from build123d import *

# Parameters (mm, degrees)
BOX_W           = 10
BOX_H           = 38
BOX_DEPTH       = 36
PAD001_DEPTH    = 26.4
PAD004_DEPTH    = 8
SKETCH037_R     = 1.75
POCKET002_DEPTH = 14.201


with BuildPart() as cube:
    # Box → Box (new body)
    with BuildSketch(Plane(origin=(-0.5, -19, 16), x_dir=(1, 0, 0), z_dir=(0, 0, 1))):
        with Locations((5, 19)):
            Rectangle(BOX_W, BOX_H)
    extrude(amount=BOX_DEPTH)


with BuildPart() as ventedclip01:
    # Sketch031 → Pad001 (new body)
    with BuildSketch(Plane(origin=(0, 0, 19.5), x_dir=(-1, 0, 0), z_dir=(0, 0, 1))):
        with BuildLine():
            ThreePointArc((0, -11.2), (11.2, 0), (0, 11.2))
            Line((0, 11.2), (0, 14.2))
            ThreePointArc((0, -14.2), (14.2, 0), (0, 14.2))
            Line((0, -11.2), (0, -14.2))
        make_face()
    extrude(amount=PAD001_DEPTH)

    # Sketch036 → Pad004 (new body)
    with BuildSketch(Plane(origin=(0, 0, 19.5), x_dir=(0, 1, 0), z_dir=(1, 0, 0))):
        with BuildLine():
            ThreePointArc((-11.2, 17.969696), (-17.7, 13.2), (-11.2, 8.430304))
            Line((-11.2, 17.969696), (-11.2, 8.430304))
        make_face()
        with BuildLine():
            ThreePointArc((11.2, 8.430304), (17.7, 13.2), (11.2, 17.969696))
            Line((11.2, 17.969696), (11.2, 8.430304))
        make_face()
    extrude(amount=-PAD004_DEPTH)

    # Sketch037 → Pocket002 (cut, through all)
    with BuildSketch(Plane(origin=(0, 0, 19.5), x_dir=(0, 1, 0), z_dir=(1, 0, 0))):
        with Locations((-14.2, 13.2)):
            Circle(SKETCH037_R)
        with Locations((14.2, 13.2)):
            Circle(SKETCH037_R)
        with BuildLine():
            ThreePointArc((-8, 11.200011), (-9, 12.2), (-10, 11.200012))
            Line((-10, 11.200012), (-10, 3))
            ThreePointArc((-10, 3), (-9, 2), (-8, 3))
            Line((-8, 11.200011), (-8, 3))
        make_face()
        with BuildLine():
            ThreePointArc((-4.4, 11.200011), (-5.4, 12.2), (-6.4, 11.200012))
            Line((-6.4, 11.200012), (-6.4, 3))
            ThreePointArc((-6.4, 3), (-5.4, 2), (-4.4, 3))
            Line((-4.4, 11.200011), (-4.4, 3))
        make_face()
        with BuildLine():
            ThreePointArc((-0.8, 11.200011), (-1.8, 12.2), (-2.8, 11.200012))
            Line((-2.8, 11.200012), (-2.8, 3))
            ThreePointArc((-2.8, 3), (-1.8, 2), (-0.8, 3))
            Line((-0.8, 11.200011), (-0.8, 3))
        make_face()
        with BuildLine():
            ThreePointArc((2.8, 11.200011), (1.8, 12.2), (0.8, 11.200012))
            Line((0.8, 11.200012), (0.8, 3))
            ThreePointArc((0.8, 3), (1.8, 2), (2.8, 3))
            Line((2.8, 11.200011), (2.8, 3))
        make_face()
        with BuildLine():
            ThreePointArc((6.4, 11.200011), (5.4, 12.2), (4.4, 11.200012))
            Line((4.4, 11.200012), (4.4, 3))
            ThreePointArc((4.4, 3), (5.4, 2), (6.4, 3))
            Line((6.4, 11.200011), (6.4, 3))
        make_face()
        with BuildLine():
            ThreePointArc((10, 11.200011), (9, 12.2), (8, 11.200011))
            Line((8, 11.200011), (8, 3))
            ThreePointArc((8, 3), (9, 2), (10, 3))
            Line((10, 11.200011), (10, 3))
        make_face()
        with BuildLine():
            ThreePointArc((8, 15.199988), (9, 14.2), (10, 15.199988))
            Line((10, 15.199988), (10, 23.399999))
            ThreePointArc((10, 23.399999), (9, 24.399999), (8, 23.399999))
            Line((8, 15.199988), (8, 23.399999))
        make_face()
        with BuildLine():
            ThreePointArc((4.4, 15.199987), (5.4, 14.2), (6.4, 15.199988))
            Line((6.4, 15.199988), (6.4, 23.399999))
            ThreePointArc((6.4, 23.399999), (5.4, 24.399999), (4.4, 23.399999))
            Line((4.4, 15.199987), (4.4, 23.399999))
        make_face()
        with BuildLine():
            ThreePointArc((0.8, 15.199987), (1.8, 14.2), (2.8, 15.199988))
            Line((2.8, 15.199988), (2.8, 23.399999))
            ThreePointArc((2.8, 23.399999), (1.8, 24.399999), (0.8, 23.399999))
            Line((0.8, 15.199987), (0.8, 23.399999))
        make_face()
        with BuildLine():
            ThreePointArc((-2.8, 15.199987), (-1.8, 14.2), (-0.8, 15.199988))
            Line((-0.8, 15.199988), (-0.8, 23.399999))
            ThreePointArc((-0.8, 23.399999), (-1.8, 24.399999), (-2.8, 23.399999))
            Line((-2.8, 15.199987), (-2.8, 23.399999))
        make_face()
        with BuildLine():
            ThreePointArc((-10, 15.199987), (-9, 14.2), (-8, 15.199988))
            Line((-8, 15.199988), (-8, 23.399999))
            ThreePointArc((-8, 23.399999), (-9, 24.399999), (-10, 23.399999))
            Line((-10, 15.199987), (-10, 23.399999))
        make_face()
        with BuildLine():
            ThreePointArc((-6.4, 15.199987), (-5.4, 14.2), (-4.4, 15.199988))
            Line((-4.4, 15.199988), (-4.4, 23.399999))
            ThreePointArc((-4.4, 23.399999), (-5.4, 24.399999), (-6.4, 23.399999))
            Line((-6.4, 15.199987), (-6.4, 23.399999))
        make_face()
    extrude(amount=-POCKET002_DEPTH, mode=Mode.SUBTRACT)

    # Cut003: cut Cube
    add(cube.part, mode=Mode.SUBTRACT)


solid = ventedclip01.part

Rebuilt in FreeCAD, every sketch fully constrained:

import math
import FreeCAD as App
import Part
import Sketcher
from FreeCAD import Vector

doc = App.newDocument("Part")
params = doc.addObject("Spreadsheet::Sheet", "Params")
for row, (alias, value) in enumerate([
    ("sketch1_width", "10 mm"),
    ("sketch1_height", "38 mm"),
    ("pad1_length", "36 mm"),
    ("sketch2_radius", "11.2 mm"),
    ("sketch2_radius2", "14.2 mm"),
    ("pad2_length", "26.4 mm"),
    ("sketch3_radius", "5 mm"),
    ("pad3_length", "8 mm"),
    ("sketch4_radius", "1 mm"),
    ("sketch4_diameter", "3.5 mm"),
], start=1):
    params.set(f"A{row}", alias)
    params.set(f"B{row}", "=" + value)
    params.setAlias(f"B{row}", alias)

body = doc.addObject("PartDesign::Body", "Body")

sketch1 = body.newObject("Sketcher::SketchObject", "Sketch")
sketch1.AttachmentSupport = (doc.getObject("XY_Plane"), [""])
sketch1.MapMode = "FlatFace"
sketch1.AttachmentOffset = App.Placement(Vector(0, 0, 16), App.Rotation())
sketch1.addGeometry([
    Part.LineSegment(Vector(0, 19, 0), Vector(0, -19, 0)),
    Part.LineSegment(Vector(0, -19, 0), Vector(10, -19, 0)),
    Part.LineSegment(Vector(10, -19, 0), Vector(10, 19, 0)),
    Part.LineSegment(Vector(10, 19, 0), Vector(0, 19, 0)),
], False)
sketch1.addConstraint([
    Sketcher.Constraint("Coincident", 0, 2, 1, 1),
    Sketcher.Constraint("Coincident", 1, 2, 2, 1),
    Sketcher.Constraint("Coincident", 2, 2, 3, 1),
    Sketcher.Constraint("Coincident", 3, 2, 0, 1),
    Sketcher.Constraint("Vertical", 0),
    Sketcher.Constraint("Horizontal", 1),
    Sketcher.Constraint("Vertical", 2),
    Sketcher.Constraint("Horizontal", 3),
    Sketcher.Constraint("DistanceX", 1, 1, 1, 2, 10.0),
    Sketcher.Constraint("DistanceY", 0, 2, 0, 1, 38.0),
    Sketcher.Constraint("DistanceY", 0, 2, -1, 1, 19.0),
    Sketcher.Constraint("DistanceX", 0, 2, -1, 1, 0.5),
])
sketch1.setExpression("Constraints[8]", "Params.sketch1_width")
sketch1.setExpression("Constraints[9]", "Params.sketch1_height")
pad1 = body.newObject("PartDesign::Pad", "Pad")
pad1.Profile = sketch1
pad1.setExpression("Length", "Params.pad1_length")
body2 = doc.addObject("PartDesign::Body", "Body001")

sketch2 = body2.newObject("Sketcher::SketchObject", "Sketch001")
sketch2.AttachmentSupport = (doc.getObject("XY_Plane001"), [""])
sketch2.MapMode = "FlatFace"
sketch2.AttachmentOffset = App.Placement(Vector(0, 0, 19.5), App.Rotation())
sketch2.addGeometry([
    Part.ArcOfCircle(Part.Circle(Vector(0, 0, 0), Vector(0, 0, 1), 11.2), math.radians(90), math.radians(270)),
    Part.LineSegment(Vector(0, 11.2, 0), Vector(0, 14.2, 0)),
    Part.ArcOfCircle(Part.Circle(Vector(0, 0, 0), Vector(0, 0, 1), 14.2), math.radians(90), math.radians(270)),
    Part.LineSegment(Vector(0, -14.2, 0), Vector(0, -11.2, 0)),
], False)
sketch2.addConstraint([
    Sketcher.Constraint("Coincident", 0, 1, 1, 1),
    Sketcher.Constraint("Coincident", 1, 2, 2, 1),
    Sketcher.Constraint("Coincident", 2, 2, 3, 1),
    Sketcher.Constraint("Coincident", 3, 2, 0, 2),
    Sketcher.Constraint("Vertical", 1),
    Sketcher.Constraint("Vertical", 3),
    Sketcher.Constraint("Coincident", 0, 3, -1, 1),
    Sketcher.Constraint("Coincident", 2, 3, -1, 1),
    Sketcher.Constraint("PointOnObject", 0, 1, -2),
    Sketcher.Constraint("PointOnObject", 2, 2, -2),
    Sketcher.Constraint("Radius", 0, 11.2),
    Sketcher.Constraint("Radius", 2, 14.2),
])
sketch2.setExpression("Constraints[10]", "Params.sketch2_radius")
sketch2.setExpression("Constraints[11]", "Params.sketch2_radius2")
pad2 = body2.newObject("PartDesign::Pad", "Pad001")
pad2.Profile = sketch2
pad2.setExpression("Length", "Params.pad2_length")

sketch3 = body2.newObject("Sketcher::SketchObject", "Sketch002")
sketch3.AttachmentSupport = (doc.getObject("YZ_Plane001"), [""])
sketch3.MapMode = "FlatFace"
sketch3.addGeometry([
    Part.ArcOfCircle(Part.Circle(Vector(-12.7, 32.7, 0), Vector(0, 0, 1), 5), math.radians(73), math.radians(287)),
    Part.LineSegment(Vector(-11.2, 27.9, 0), Vector(-11.2, 37.5, 0)),
    Part.ArcOfCircle(Part.Circle(Vector(12.7, 32.7, 0), Vector(0, 0, 1), 5), math.radians(-107), math.radians(107)),
    Part.LineSegment(Vector(11.2, 37.5, 0), Vector(11.2, 27.9, 0)),
], False)
sketch3.addConstraint([
    Sketcher.Constraint("Coincident", 0, 1, 1, 2),
    Sketcher.Constraint("Coincident", 1, 1, 0, 2),
    Sketcher.Constraint("Coincident", 2, 1, 3, 2),
    Sketcher.Constraint("Coincident", 3, 1, 2, 2),
    Sketcher.Constraint("Vertical", 1),
    Sketcher.Constraint("Vertical", 3),
    Sketcher.Constraint("Equal", 0, 2),
    Sketcher.Constraint("Symmetric", 0, 3, 2, 3, -2),
    Sketcher.Constraint("Horizontal", 1, 1, 2, 1),
    Sketcher.Constraint("Radius", 0, 5.0),
    Sketcher.Constraint("DistanceX", 0, 3, -1, 1, 12.7),
    Sketcher.Constraint("DistanceY", -1, 1, 0, 3, 32.7),
    Sketcher.Constraint("DistanceX", 0, 1, -1, 1, 11.2),
])
sketch3.setExpression("Constraints[9]", "Params.sketch3_radius")
pad3 = body2.newObject("PartDesign::Pad", "Pad002")
pad3.Profile = sketch3
pad3.setExpression("Length", "Params.pad3_length")
pad3.Reversed = True

sketch4 = body2.newObject("Sketcher::SketchObject", "Sketch003")
sketch4.AttachmentSupport = (doc.getObject("YZ_Plane001"), [""])
sketch4.MapMode = "FlatFace"
sketch4.addGeometry([
    Part.Circle(Vector(-14.2, 32.7, 0), Vector(0, 0, 1), 1.8),
    Part.Circle(Vector(14.2, 32.7, 0), Vector(0, 0, 1), 1.8),
    Part.ArcOfCircle(Part.Circle(Vector(-9, 30.7, 0), Vector(0, 0, 1), 1), math.radians(0), math.radians(180)),
    Part.LineSegment(Vector(-10, 30.7, 0), Vector(-10, 22.5, 0)),
    Part.ArcOfCircle(Part.Circle(Vector(-9, 22.5, 0), Vector(0, 0, 1), 1), math.radians(180), math.radians(360)),
    Part.LineSegment(Vector(-8, 22.5, 0), Vector(-8, 30.7, 0)),
    Part.ArcOfCircle(Part.Circle(Vector(-5.4, 30.7, 0), Vector(0, 0, 1), 1), math.radians(0), math.radians(180)),
    Part.LineSegment(Vector(-6.4, 30.7, 0), Vector(-6.4, 22.5, 0)),
    Part.ArcOfCircle(Part.Circle(Vector(-5.4, 22.5, 0), Vector(0, 0, 1), 1), math.radians(180), math.radians(360)),
    Part.LineSegment(Vector(-4.4, 22.5, 0), Vector(-4.4, 30.7, 0)),
    Part.ArcOfCircle(Part.Circle(Vector(-1.8, 30.7, 0), Vector(0, 0, 1), 1), math.radians(0), math.radians(180)),
    Part.LineSegment(Vector(-2.8, 30.7, 0), Vector(-2.8, 22.5, 0)),
    Part.ArcOfCircle(Part.Circle(Vector(-1.8, 22.5, 0), Vector(0, 0, 1), 1), math.radians(180), math.radians(360)),
    Part.LineSegment(Vector(-0.8, 22.5, 0), Vector(-0.8, 30.7, 0)),
    Part.ArcOfCircle(Part.Circle(Vector(1.8, 30.7, 0), Vector(0, 0, 1), 1), math.radians(0), math.radians(180)),
    Part.LineSegment(Vector(0.8, 30.7, 0), Vector(0.8, 22.5, 0)),
    Part.ArcOfCircle(Part.Circle(Vector(1.8, 22.5, 0), Vector(0, 0, 1), 1), math.radians(180), math.radians(360)),
    Part.LineSegment(Vector(2.8, 22.5, 0), Vector(2.8, 30.7, 0)),
    Part.ArcOfCircle(Part.Circle(Vector(5.4, 30.7, 0), Vector(0, 0, 1), 1), math.radians(0), math.radians(180)),
    Part.LineSegment(Vector(4.4, 30.7, 0), Vector(4.4, 22.5, 0)),
    Part.ArcOfCircle(Part.Circle(Vector(5.4, 22.5, 0), Vector(0, 0, 1), 1), math.radians(180), math.radians(360)),
    Part.LineSegment(Vector(6.4, 22.5, 0), Vector(6.4, 30.7, 0)),
    Part.ArcOfCircle(Part.Circle(Vector(9, 30.7, 0), Vector(0, 0, 1), 1), math.radians(0), math.radians(180)),
    Part.LineSegment(Vector(8, 30.7, 0), Vector(8, 22.5, 0)),
    Part.ArcOfCircle(Part.Circle(Vector(9, 22.5, 0), Vector(0, 0, 1), 1), math.radians(180), math.radians(360)),
    Part.LineSegment(Vector(10, 22.5, 0), Vector(10, 30.7, 0)),
    Part.ArcOfCircle(Part.Circle(Vector(9, 34.7, 0), Vector(0, 0, 1), 1), math.radians(-180), math.radians(0)),
    Part.LineSegment(Vector(10, 34.7, 0), Vector(10, 42.9, 0)),
    Part.ArcOfCircle(Part.Circle(Vector(9, 42.9, 0), Vector(0, 0, 1), 1), math.radians(0), math.radians(180)),
    Part.LineSegment(Vector(8, 42.9, 0), Vector(8, 34.7, 0)),
    Part.ArcOfCircle(Part.Circle(Vector(5.4, 34.7, 0), Vector(0, 0, 1), 1), math.radians(-180), math.radians(0)),
    Part.LineSegment(Vector(6.4, 34.7, 0), Vector(6.4, 42.9, 0)),
    Part.ArcOfCircle(Part.Circle(Vector(5.4, 42.9, 0), Vector(0, 0, 1), 1), math.radians(0), math.radians(180)),
    Part.LineSegment(Vector(4.4, 42.9, 0), Vector(4.4, 34.7, 0)),
    Part.ArcOfCircle(Part.Circle(Vector(1.8, 34.7, 0), Vector(0, 0, 1), 1), math.radians(-180), math.radians(0)),
    Part.LineSegment(Vector(2.8, 34.7, 0), Vector(2.8, 42.9, 0)),
    Part.ArcOfCircle(Part.Circle(Vector(1.8, 42.9, 0), Vector(0, 0, 1), 1), math.radians(0), math.radians(180)),
    Part.LineSegment(Vector(0.8, 42.9, 0), Vector(0.8, 34.7, 0)),
    Part.ArcOfCircle(Part.Circle(Vector(-1.8, 34.7, 0), Vector(0, 0, 1), 1), math.radians(-180), math.radians(0)),
    Part.LineSegment(Vector(-0.8, 34.7, 0), Vector(-0.8, 42.9, 0)),
    Part.ArcOfCircle(Part.Circle(Vector(-1.8, 42.9, 0), Vector(0, 0, 1), 1), math.radians(0), math.radians(180)),
    Part.LineSegment(Vector(-2.8, 42.9, 0), Vector(-2.8, 34.7, 0)),
    Part.ArcOfCircle(Part.Circle(Vector(-9, 34.7, 0), Vector(0, 0, 1), 1), math.radians(-180), math.radians(0)),
    Part.LineSegment(Vector(-8, 34.7, 0), Vector(-8, 42.9, 0)),
    Part.ArcOfCircle(Part.Circle(Vector(-9, 42.9, 0), Vector(0, 0, 1), 1), math.radians(0), math.radians(180)),
    Part.LineSegment(Vector(-10, 42.9, 0), Vector(-10, 34.7, 0)),
    Part.ArcOfCircle(Part.Circle(Vector(-5.4, 34.7, 0), Vector(0, 0, 1), 1), math.radians(-180), math.radians(0)),
    Part.LineSegment(Vector(-4.4, 34.7, 0), Vector(-4.4, 42.9, 0)),
    Part.ArcOfCircle(Part.Circle(Vector(-5.4, 42.9, 0), Vector(0, 0, 1), 1), math.radians(0), math.radians(180)),
    Part.LineSegment(Vector(-6.4, 42.9, 0), Vector(-6.4, 34.7, 0)),
], False)
sketch4.addConstraint([
    Sketcher.Constraint("Coincident", 2, 2, 3, 1),
    Sketcher.Constraint("Tangent", 3, 2, 4, 1),
    Sketcher.Constraint("Tangent", 4, 2, 5, 1),
    Sketcher.Constraint("Coincident", 5, 2, 2, 1),
    Sketcher.Constraint("Coincident", 6, 2, 7, 1),
    Sketcher.Constraint("Tangent", 7, 2, 8, 1),
    Sketcher.Constraint("Tangent", 8, 2, 9, 1),
    Sketcher.Constraint("Coincident", 9, 2, 6, 1),
    Sketcher.Constraint("Coincident", 10, 2, 11, 1),
    Sketcher.Constraint("Tangent", 11, 2, 12, 1),
    Sketcher.Constraint("Tangent", 12, 2, 13, 1),
    Sketcher.Constraint("Coincident", 13, 2, 10, 1),
    Sketcher.Constraint("Coincident", 14, 2, 15, 1),
    Sketcher.Constraint("Tangent", 15, 2, 16, 1),
    Sketcher.Constraint("Tangent", 16, 2, 17, 1),
    Sketcher.Constraint("Coincident", 17, 2, 14, 1),
    Sketcher.Constraint("Coincident", 18, 2, 19, 1),
    Sketcher.Constraint("Tangent", 19, 2, 20, 1),
    Sketcher.Constraint("Tangent", 20, 2, 21, 1),
    Sketcher.Constraint("Coincident", 21, 2, 18, 1),
    Sketcher.Constraint("Coincident", 22, 2, 23, 1),
    Sketcher.Constraint("Tangent", 23, 2, 24, 1),
    Sketcher.Constraint("Tangent", 24, 2, 25, 1),
    Sketcher.Constraint("Coincident", 25, 2, 22, 1),
    Sketcher.Constraint("Coincident", 26, 2, 27, 1),
    Sketcher.Constraint("Tangent", 27, 2, 28, 1),
    Sketcher.Constraint("Tangent", 28, 2, 29, 1),
    Sketcher.Constraint("Coincident", 29, 2, 26, 1),
    Sketcher.Constraint("Coincident", 30, 2, 31, 1),
    Sketcher.Constraint("Tangent", 31, 2, 32, 1),
    Sketcher.Constraint("Tangent", 32, 2, 33, 1),
    Sketcher.Constraint("Coincident", 33, 2, 30, 1),
    Sketcher.Constraint("Coincident", 34, 2, 35, 1),
    Sketcher.Constraint("Tangent", 35, 2, 36, 1),
    Sketcher.Constraint("Tangent", 36, 2, 37, 1),
    Sketcher.Constraint("Coincident", 37, 2, 34, 1),
    Sketcher.Constraint("Coincident", 38, 2, 39, 1),
    Sketcher.Constraint("Tangent", 39, 2, 40, 1),
    Sketcher.Constraint("Tangent", 40, 2, 41, 1),
    Sketcher.Constraint("Coincident", 41, 2, 38, 1),
    Sketcher.Constraint("Coincident", 42, 2, 43, 1),
    Sketcher.Constraint("Tangent", 43, 2, 44, 1),
    Sketcher.Constraint("Tangent", 44, 2, 45, 1),
    Sketcher.Constraint("Coincident", 45, 2, 42, 1),
    Sketcher.Constraint("Coincident", 46, 2, 47, 1),
    Sketcher.Constraint("Tangent", 47, 2, 48, 1),
    Sketcher.Constraint("Tangent", 48, 2, 49, 1),
    Sketcher.Constraint("Coincident", 49, 2, 46, 1),
    Sketcher.Constraint("Vertical", 3),
    Sketcher.Constraint("Vertical", 5),
    Sketcher.Constraint("Vertical", 7),
    Sketcher.Constraint("Vertical", 9),
    Sketcher.Constraint("Vertical", 11),
    Sketcher.Constraint("Vertical", 13),
    Sketcher.Constraint("Vertical", 15),
    Sketcher.Constraint("Vertical", 17),
    Sketcher.Constraint("Vertical", 19),
    Sketcher.Constraint("Vertical", 21),
    Sketcher.Constraint("Vertical", 23),
    Sketcher.Constraint("Vertical", 25),
    Sketcher.Constraint("Vertical", 27),
    Sketcher.Constraint("Vertical", 29),
    Sketcher.Constraint("Vertical", 31),
    Sketcher.Constraint("Vertical", 33),
    Sketcher.Constraint("Vertical", 35),
    Sketcher.Constraint("Vertical", 37),
    Sketcher.Constraint("Vertical", 39),
    Sketcher.Constraint("Vertical", 41),
    Sketcher.Constraint("Vertical", 43),
    Sketcher.Constraint("Vertical", 45),
    Sketcher.Constraint("Vertical", 47),
    Sketcher.Constraint("Vertical", 49),
    Sketcher.Constraint("Equal", 0, 1),
    Sketcher.Constraint("Equal", 4, 6),
    Sketcher.Constraint("Equal", 8, 10),
    Sketcher.Constraint("Equal", 12, 14),
    Sketcher.Constraint("Equal", 16, 18),
    Sketcher.Constraint("Equal", 20, 22),
    Sketcher.Constraint("Equal", 24, 26),
    Sketcher.Constraint("Equal", 28, 30),
    Sketcher.Constraint("Equal", 32, 34),
    Sketcher.Constraint("Equal", 36, 38),
    Sketcher.Constraint("Equal", 40, 42),
    Sketcher.Constraint("Equal", 44, 46),
    Sketcher.Constraint("Symmetric", 0, 3, 1, 3, -2),
    Sketcher.Constraint("Symmetric", 10, 3, 14, 3, -2),
    Sketcher.Constraint("Symmetric", 6, 3, 18, 3, -2),
    Sketcher.Constraint("Symmetric", 2, 3, 22, 3, -2),
    Sketcher.Constraint("Symmetric", 34, 3, 38, 3, -2),
    Sketcher.Constraint("Symmetric", 26, 3, 42, 3, -2),
    Sketcher.Constraint("Symmetric", 30, 3, 46, 3, -2),
    Sketcher.Constraint("Horizontal", 2, 3, 6, 3),
    Sketcher.Constraint("Horizontal", 4, 3, 8, 3),
    Sketcher.Constraint("Horizontal", 6, 3, 10, 3),
    Sketcher.Constraint("Horizontal", 8, 3, 12, 3),
    Sketcher.Constraint("Horizontal", 12, 3, 16, 3),
    Sketcher.Constraint("Horizontal", 16, 3, 20, 3),
    Sketcher.Constraint("Horizontal", 20, 3, 24, 3),
    Sketcher.Constraint("Horizontal", 26, 3, 30, 3),
    Sketcher.Constraint("Horizontal", 28, 3, 32, 3),
    Sketcher.Constraint("Horizontal", 30, 3, 34, 3),
    Sketcher.Constraint("Horizontal", 32, 3, 36, 3),
    Sketcher.Constraint("Horizontal", 36, 3, 40, 3),
    Sketcher.Constraint("Horizontal", 40, 3, 44, 3),
    Sketcher.Constraint("Horizontal", 44, 3, 48, 3),
    Sketcher.Constraint("Horizontal", 2, 2, 5, 2),
    Sketcher.Constraint("Horizontal", 5, 2, 6, 2),
    Sketcher.Constraint("Horizontal", 6, 2, 9, 2),
    Sketcher.Constraint("Horizontal", 9, 2, 10, 2),
    Sketcher.Constraint("Horizontal", 10, 2, 13, 2),
    Sketcher.Constraint("Horizontal", 13, 2, 14, 2),
    Sketcher.Constraint("Horizontal", 14, 2, 17, 2),
    Sketcher.Constraint("Horizontal", 17, 2, 18, 2),
    Sketcher.Constraint("Horizontal", 18, 2, 21, 2),
    Sketcher.Constraint("Horizontal", 21, 2, 22, 2),
    Sketcher.Constraint("Horizontal", 22, 2, 25, 2),
    Sketcher.Constraint("Horizontal", 26, 2, 29, 2),
    Sketcher.Constraint("Horizontal", 29, 2, 30, 2),
    Sketcher.Constraint("Horizontal", 30, 2, 33, 2),
    Sketcher.Constraint("Horizontal", 33, 2, 34, 2),
    Sketcher.Constraint("Horizontal", 34, 2, 37, 2),
    Sketcher.Constraint("Horizontal", 37, 2, 38, 2),
    Sketcher.Constraint("Horizontal", 38, 2, 41, 2),
    Sketcher.Constraint("Horizontal", 41, 2, 42, 2),
    Sketcher.Constraint("Horizontal", 42, 2, 45, 2),
    Sketcher.Constraint("Horizontal", 45, 2, 46, 2),
    Sketcher.Constraint("Horizontal", 46, 2, 49, 2),
    Sketcher.Constraint("Vertical", 24, 3, 26, 3),
    Sketcher.Constraint("Vertical", 20, 3, 30, 3),
    Sketcher.Constraint("Vertical", 16, 3, 34, 3),
    Sketcher.Constraint("Equal", 25, 27),
    Sketcher.Constraint("Radius", 2, 1.0),
    Sketcher.Constraint("Diameter", 0, 3.5),
    Sketcher.Constraint("DistanceX", 2, 3, -1, 1, 9.0),
    Sketcher.Constraint("DistanceX", 0, 3, -1, 1, 14.2),
    Sketcher.Constraint("DistanceY", -1, 1, 0, 3, 32.7),
    Sketcher.Constraint("DistanceY", -1, 1, 2, 3, 30.7),
    Sketcher.Constraint("DistanceY", -1, 1, 4, 3, 22.5),
    Sketcher.Constraint("DistanceX", 6, 3, -1, 1, 5.4),
    Sketcher.Constraint("DistanceX", 10, 3, -1, 1, 1.8),
    Sketcher.Constraint("DistanceY", -1, 1, 26, 3, 34.7),
    Sketcher.Constraint("DistanceY", -1, 1, 28, 3, 42.899999),
    Sketcher.Constraint("DistanceY", 5, 1, 5, 2, 8.200011),
])
sketch4.setExpression("Constraints[131]", "Params.sketch4_radius")
sketch4.setExpression("Constraints[132]", "Params.sketch4_diameter")
pocket1 = body2.newObject("PartDesign::Pocket", "Pocket")
pocket1.Profile = sketch4
pocket1.Type = "ThroughAll"
doc.recompute()

boolean = body2.newObject("PartDesign::Boolean", "Boolean")
boolean.Type = "Cut"
boolean.addObjects([body])

doc.recompute()
